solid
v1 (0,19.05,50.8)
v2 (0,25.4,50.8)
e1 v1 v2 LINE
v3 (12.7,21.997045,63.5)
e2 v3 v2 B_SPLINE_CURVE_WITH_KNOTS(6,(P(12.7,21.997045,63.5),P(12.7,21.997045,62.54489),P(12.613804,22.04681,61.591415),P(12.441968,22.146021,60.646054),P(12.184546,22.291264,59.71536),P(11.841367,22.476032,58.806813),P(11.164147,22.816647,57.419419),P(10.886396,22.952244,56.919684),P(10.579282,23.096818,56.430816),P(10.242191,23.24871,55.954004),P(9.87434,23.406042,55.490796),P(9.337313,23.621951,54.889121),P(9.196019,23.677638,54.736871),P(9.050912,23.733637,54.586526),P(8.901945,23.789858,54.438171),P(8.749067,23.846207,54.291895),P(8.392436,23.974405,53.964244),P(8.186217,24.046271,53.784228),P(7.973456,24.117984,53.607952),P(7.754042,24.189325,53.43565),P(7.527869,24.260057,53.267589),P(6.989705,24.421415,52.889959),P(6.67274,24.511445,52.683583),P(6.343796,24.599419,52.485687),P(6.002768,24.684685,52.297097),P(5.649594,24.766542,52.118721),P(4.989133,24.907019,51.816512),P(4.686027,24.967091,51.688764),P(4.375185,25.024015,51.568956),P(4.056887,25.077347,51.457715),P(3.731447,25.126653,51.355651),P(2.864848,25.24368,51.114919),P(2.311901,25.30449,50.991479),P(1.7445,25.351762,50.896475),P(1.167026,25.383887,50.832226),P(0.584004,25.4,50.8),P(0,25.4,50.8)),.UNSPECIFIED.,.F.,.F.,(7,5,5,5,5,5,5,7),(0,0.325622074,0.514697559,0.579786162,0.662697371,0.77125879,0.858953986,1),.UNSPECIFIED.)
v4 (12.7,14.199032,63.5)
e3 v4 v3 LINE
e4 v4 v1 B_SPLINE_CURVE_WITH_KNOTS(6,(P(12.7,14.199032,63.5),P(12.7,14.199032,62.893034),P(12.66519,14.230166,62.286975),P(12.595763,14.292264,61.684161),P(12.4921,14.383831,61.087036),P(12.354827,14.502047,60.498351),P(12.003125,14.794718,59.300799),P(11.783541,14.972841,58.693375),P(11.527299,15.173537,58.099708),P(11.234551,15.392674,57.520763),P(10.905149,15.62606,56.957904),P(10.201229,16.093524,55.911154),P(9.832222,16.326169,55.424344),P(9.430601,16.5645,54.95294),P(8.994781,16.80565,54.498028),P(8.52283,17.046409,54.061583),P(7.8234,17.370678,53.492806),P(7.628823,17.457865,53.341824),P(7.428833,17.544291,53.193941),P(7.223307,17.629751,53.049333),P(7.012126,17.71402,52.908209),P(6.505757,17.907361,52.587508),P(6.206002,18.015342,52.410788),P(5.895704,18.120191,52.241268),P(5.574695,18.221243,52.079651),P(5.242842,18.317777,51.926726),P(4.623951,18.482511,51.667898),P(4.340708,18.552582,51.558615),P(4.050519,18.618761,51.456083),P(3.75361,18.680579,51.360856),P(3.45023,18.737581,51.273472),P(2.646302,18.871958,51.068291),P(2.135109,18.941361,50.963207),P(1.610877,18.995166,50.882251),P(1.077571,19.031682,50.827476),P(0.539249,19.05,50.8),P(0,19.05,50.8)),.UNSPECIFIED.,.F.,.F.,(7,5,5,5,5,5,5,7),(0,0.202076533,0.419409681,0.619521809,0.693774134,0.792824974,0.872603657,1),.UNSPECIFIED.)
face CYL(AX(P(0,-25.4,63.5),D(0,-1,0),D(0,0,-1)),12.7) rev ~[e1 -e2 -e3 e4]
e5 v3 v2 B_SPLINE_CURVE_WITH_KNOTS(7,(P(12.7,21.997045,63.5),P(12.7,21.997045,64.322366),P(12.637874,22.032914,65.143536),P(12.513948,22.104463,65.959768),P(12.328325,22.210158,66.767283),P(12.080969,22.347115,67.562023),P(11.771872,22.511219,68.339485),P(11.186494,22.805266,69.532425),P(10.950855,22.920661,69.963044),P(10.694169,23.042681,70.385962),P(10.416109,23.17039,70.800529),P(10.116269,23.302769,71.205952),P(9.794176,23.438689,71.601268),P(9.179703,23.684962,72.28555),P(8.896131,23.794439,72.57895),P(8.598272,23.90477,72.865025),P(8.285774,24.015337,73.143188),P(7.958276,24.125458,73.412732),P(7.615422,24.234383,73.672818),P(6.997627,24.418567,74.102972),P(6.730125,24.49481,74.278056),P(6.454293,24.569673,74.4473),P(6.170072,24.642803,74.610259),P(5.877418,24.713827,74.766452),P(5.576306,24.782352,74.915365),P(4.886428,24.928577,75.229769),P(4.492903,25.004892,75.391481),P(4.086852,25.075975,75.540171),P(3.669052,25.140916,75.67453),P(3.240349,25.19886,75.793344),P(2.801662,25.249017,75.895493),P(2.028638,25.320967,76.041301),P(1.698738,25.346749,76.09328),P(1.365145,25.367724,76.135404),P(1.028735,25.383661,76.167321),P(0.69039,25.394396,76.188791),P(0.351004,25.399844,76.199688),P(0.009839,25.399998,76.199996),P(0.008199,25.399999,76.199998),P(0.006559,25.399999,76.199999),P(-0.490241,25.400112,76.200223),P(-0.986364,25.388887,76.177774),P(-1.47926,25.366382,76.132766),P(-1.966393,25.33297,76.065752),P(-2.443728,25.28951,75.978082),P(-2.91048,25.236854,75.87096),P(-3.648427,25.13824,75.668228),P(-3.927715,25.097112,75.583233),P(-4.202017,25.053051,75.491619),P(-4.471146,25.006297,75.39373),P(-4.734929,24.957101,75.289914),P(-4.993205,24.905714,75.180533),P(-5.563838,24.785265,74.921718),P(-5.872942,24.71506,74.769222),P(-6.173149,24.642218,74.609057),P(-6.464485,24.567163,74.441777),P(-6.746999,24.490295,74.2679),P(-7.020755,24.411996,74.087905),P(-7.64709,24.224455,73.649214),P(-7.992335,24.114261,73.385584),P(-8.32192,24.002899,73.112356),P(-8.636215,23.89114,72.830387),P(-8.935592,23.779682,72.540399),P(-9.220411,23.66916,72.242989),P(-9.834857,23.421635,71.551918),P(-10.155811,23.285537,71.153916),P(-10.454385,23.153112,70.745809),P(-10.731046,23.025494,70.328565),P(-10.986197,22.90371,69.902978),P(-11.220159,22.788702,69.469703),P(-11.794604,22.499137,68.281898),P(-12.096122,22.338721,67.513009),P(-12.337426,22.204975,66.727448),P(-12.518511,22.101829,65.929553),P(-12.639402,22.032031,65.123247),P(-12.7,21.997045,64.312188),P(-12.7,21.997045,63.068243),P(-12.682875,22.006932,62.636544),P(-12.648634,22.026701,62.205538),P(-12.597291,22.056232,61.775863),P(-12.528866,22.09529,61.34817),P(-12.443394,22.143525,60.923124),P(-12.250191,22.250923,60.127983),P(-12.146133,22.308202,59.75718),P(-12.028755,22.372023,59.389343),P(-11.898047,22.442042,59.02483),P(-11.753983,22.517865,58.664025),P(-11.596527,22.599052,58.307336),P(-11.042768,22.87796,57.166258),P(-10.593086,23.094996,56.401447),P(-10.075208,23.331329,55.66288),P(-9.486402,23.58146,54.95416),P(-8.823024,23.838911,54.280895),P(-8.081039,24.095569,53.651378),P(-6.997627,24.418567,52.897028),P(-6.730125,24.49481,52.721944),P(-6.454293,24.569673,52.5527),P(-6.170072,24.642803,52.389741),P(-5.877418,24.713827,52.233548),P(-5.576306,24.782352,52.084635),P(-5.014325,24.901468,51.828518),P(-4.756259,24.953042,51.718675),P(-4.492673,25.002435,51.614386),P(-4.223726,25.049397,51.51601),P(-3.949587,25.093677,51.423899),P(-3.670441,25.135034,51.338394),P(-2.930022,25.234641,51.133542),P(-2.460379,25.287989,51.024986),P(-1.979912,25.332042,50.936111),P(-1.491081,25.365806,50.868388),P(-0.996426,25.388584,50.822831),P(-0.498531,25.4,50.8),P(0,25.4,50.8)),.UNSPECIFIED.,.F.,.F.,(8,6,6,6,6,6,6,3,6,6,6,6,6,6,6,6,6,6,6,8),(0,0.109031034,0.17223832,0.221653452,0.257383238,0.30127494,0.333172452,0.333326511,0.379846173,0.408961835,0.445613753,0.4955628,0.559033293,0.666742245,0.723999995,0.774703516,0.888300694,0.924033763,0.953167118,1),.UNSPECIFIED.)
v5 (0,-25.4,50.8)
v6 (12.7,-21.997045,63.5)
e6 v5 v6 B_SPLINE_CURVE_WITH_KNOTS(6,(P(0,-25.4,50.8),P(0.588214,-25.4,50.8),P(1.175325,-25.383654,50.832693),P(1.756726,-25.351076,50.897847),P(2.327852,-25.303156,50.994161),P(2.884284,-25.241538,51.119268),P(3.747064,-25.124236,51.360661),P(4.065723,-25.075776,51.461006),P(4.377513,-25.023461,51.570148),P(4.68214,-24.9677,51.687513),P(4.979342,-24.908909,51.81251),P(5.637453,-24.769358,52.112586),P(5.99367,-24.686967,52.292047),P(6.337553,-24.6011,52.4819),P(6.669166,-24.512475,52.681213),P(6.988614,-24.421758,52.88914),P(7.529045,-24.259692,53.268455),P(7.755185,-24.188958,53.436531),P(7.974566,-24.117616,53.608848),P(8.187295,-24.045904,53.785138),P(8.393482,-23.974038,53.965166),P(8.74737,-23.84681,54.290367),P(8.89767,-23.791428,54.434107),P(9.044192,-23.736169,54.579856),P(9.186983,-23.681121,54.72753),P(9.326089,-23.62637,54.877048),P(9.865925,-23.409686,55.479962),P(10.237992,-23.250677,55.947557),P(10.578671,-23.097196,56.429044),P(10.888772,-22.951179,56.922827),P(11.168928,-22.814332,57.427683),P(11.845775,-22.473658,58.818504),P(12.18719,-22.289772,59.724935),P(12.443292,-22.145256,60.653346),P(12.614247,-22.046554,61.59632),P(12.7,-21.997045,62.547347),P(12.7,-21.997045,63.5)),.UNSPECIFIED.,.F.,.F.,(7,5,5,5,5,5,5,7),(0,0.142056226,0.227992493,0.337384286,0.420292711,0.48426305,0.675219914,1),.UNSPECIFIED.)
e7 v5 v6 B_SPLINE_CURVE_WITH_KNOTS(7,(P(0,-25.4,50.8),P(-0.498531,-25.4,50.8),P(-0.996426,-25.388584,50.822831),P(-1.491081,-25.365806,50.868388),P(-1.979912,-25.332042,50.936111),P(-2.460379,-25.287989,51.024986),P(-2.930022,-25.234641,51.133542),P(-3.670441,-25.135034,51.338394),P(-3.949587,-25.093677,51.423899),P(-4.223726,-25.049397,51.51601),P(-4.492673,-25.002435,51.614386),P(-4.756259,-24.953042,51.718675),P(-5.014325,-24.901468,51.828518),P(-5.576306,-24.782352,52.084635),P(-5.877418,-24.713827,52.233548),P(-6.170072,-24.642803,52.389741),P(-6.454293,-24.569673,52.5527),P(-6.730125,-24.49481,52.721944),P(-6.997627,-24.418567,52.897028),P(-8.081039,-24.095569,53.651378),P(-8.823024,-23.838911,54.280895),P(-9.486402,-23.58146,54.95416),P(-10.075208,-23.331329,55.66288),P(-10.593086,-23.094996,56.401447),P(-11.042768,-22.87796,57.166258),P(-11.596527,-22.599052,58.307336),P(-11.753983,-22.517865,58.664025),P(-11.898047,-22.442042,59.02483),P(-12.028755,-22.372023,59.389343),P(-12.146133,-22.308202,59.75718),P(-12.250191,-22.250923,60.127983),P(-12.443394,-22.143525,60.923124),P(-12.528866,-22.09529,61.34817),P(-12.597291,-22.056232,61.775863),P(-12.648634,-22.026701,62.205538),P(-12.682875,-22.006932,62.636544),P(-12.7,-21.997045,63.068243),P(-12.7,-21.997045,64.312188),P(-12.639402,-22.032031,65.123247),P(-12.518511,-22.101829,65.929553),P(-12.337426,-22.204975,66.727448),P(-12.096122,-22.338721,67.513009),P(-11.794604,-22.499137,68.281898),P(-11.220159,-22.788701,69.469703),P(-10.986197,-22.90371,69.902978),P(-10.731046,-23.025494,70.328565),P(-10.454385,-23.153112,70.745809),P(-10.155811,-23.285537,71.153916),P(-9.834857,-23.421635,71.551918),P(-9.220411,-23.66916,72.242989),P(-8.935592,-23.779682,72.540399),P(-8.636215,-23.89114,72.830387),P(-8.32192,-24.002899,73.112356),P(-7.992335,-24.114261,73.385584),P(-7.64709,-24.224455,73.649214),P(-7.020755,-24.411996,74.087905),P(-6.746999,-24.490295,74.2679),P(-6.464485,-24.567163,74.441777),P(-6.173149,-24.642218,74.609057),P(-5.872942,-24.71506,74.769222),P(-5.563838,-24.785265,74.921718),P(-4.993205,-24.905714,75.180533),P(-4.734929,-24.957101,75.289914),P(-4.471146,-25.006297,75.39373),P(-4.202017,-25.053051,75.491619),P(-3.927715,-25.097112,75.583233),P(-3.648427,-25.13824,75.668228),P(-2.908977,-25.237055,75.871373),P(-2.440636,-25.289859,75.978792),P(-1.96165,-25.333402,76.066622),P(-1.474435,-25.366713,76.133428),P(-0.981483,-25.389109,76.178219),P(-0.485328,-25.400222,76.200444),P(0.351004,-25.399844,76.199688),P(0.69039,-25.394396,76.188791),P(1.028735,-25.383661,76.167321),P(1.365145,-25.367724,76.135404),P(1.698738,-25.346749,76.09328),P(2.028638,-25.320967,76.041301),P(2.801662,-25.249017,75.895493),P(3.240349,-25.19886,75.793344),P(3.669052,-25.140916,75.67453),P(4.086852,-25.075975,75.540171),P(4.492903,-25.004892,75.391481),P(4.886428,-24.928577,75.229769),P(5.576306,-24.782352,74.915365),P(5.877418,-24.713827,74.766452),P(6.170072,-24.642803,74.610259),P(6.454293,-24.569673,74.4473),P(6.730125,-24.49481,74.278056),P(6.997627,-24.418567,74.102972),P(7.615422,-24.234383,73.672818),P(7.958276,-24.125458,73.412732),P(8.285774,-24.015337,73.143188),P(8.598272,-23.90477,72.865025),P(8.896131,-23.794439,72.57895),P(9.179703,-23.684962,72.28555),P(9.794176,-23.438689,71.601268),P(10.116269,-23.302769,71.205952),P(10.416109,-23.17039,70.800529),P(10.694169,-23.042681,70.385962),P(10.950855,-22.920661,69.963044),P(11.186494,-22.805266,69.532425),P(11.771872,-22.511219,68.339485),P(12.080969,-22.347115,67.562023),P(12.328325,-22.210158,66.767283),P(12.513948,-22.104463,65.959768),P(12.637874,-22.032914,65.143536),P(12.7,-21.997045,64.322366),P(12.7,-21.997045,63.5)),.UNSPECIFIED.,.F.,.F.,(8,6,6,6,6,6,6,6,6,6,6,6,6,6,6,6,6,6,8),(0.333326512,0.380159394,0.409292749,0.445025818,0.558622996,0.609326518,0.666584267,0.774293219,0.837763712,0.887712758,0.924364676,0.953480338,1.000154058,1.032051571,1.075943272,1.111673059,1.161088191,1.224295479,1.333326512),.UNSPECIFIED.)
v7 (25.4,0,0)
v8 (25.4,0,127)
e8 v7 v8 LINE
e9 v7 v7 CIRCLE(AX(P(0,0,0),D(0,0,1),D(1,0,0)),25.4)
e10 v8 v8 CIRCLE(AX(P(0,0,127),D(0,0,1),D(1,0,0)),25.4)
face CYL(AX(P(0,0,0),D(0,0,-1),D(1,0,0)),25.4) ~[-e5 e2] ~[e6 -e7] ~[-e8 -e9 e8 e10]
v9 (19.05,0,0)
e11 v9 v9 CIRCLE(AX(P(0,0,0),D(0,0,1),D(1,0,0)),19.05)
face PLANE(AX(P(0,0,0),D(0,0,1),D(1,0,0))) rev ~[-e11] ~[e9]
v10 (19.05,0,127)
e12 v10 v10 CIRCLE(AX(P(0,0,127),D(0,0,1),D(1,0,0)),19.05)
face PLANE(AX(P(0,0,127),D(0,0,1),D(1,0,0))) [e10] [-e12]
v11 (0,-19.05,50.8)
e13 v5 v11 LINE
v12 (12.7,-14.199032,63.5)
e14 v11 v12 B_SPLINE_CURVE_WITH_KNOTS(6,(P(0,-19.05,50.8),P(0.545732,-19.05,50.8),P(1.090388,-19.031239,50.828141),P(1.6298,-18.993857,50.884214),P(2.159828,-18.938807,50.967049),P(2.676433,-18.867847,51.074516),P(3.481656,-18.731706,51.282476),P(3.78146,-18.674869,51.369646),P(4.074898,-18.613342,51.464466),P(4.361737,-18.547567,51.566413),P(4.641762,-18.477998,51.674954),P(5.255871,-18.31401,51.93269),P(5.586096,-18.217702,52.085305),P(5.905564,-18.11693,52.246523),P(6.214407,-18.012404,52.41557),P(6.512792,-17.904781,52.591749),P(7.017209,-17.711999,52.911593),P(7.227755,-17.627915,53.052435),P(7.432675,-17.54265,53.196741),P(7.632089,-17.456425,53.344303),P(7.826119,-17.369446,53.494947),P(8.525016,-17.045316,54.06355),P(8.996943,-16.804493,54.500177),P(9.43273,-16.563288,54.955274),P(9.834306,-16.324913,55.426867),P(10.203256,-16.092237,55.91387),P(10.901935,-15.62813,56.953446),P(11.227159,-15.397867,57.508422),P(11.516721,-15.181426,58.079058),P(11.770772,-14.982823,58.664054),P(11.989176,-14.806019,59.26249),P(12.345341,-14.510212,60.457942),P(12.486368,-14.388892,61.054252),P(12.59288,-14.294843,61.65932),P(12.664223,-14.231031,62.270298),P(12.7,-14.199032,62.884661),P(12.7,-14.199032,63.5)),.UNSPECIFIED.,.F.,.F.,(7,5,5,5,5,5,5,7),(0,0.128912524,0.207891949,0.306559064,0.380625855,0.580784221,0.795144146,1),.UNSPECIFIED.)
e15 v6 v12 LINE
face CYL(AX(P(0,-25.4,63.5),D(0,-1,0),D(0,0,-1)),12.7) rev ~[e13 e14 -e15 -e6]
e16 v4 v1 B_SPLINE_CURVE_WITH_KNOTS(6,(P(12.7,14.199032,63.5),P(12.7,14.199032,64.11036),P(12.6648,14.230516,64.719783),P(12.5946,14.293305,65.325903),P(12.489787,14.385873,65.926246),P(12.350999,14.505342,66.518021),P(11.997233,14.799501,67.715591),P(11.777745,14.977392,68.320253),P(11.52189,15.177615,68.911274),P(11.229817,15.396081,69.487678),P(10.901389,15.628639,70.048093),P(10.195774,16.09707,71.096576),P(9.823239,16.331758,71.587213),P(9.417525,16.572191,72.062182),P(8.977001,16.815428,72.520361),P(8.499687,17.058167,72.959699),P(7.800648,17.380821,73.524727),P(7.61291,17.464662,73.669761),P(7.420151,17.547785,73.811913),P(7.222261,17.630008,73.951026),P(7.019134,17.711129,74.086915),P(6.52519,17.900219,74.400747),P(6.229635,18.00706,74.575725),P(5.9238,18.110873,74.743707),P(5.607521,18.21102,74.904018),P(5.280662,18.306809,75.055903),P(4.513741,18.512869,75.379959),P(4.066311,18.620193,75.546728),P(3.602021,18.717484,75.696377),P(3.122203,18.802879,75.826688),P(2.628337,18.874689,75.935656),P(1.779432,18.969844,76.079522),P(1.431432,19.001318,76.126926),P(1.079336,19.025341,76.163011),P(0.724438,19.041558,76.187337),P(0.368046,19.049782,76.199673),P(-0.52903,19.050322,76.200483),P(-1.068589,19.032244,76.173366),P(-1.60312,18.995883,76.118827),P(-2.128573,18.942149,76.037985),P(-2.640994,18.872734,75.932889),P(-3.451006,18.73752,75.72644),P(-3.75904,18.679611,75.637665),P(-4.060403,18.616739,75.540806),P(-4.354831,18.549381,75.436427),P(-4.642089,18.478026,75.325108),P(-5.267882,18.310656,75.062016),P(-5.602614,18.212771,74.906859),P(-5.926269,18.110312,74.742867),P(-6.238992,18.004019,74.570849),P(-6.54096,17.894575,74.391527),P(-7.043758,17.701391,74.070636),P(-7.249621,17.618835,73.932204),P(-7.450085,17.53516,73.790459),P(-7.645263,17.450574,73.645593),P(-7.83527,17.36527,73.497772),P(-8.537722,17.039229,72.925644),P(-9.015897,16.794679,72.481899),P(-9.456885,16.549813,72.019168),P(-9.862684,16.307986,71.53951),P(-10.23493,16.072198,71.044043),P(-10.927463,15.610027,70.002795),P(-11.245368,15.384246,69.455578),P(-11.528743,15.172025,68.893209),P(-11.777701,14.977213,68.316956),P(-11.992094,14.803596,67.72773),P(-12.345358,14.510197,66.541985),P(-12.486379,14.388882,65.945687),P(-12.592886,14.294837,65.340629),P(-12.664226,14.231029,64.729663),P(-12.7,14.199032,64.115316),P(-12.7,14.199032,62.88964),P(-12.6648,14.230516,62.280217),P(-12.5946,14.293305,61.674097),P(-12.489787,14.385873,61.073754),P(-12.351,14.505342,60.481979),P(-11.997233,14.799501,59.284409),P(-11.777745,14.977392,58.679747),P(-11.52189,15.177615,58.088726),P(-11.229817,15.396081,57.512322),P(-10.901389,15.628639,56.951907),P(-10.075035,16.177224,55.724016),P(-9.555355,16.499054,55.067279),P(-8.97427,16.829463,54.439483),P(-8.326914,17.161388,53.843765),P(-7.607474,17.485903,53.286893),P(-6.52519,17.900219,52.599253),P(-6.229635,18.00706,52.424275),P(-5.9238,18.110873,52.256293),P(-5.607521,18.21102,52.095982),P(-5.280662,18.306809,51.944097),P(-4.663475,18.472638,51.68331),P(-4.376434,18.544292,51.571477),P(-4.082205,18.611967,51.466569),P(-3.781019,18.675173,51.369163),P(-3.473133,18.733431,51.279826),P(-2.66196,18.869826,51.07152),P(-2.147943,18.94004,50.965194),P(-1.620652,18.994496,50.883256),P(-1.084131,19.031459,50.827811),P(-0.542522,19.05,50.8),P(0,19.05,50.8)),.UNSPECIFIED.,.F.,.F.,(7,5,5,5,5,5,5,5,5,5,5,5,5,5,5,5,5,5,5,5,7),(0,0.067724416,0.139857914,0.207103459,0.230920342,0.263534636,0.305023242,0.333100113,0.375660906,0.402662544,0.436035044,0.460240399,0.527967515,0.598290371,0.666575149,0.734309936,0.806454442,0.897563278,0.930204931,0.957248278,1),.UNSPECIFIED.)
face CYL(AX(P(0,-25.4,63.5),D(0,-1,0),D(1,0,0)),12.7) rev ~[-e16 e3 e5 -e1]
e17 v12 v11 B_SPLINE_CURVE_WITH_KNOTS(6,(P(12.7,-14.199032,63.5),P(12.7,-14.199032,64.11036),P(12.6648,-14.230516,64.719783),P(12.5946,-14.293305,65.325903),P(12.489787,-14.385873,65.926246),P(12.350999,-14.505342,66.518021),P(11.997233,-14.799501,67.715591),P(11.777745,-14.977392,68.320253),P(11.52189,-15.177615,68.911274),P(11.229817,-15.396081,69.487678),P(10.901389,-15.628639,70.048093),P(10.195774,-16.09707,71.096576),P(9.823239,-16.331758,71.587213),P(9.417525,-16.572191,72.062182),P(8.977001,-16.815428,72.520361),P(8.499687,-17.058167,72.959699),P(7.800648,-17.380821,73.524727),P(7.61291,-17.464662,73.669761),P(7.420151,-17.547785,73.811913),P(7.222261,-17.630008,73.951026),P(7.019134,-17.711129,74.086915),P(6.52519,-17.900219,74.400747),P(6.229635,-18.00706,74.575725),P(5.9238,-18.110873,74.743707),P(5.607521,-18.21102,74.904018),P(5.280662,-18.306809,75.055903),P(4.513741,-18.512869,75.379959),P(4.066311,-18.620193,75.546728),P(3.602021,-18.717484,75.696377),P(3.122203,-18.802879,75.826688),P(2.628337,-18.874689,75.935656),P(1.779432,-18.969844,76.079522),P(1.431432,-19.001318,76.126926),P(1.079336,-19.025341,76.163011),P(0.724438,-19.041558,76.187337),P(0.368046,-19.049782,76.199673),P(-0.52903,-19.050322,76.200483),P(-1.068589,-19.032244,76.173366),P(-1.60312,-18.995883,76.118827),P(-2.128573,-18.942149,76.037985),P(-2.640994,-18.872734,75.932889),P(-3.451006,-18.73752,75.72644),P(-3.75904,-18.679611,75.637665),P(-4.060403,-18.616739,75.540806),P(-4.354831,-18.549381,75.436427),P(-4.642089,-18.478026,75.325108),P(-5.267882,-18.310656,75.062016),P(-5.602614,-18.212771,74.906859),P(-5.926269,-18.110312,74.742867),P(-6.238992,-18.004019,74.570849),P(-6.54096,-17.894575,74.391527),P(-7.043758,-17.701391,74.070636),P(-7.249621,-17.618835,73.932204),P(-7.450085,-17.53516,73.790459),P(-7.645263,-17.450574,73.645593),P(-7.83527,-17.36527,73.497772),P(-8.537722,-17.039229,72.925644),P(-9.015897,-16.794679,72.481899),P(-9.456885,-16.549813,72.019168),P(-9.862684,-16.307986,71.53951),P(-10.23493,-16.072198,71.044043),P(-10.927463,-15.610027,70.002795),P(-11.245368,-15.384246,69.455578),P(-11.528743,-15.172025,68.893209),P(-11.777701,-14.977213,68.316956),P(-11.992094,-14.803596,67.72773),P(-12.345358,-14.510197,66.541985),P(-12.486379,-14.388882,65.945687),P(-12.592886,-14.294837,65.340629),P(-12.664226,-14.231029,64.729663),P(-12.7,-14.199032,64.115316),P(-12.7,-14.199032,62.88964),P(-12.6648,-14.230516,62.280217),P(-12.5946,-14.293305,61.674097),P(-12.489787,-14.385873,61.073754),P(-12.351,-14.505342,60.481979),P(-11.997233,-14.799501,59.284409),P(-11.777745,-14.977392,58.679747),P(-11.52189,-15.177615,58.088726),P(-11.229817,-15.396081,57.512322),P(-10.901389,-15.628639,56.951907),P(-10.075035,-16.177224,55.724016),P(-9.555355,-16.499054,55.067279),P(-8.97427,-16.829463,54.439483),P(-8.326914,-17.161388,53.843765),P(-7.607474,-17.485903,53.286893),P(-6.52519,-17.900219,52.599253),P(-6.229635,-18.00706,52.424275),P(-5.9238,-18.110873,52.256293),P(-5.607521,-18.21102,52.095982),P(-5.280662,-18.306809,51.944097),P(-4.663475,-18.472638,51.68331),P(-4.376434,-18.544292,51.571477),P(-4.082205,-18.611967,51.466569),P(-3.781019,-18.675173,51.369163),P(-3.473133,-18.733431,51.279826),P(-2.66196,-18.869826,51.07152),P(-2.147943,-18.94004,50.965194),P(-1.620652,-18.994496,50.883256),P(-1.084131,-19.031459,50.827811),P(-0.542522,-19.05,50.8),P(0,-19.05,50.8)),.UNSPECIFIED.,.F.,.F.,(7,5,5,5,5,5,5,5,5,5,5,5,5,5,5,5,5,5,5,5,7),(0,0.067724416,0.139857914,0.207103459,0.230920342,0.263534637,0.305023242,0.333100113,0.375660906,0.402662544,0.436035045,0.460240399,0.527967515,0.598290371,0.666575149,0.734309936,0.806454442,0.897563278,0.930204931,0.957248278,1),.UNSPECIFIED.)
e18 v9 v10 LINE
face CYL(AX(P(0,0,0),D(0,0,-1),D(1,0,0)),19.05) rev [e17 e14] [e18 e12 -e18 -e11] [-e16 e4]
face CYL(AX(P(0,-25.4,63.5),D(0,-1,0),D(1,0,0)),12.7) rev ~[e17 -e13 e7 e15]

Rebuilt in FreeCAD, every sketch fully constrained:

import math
import FreeCAD as App
import Part
import Sketcher

V = App.Vector
Q = App.Units.Quantity

doc = App.newDocument("Part")
body = doc.addObject("PartDesign::Body", "Body")

sketch1 = body.newObject("Sketcher::SketchObject", "Sketch")
sketch1.AttachmentSupport = (doc.getObject("XY_Plane"), [""])
sketch1.MapMode = "FlatFace"
sketch1.addGeometry(Part.Circle(V(0, 0, 0), V(0, 0, 1), 25), False)
sketch1.addGeometry(Part.Circle(V(0, 0, 0), V(0, 0, 1), 19), False)
sketch1.addConstraint(Sketcher.Constraint("Coincident", 0, 3, -1, 1))
sketch1.addConstraint(Sketcher.Constraint("Coincident", 1, 3, -1, 1))
sketch1.addConstraint(Sketcher.Constraint("Diameter", 0, Q("2 in")))
sketch1.addConstraint(Sketcher.Constraint("Diameter", 1, Q("1.5 in")))
pad1 = body.newObject("PartDesign::Pad", "Pad")
pad1.Profile = sketch1
pad1.Length = Q("5 in")

sketch2 = body.newObject("Sketcher::SketchObject", "Sketch001")
sketch2.AttachmentSupport = (doc.getObject("XZ_Plane"), [""])
sketch2.MapMode = "FlatFace"
sketch2.AttachmentOffset = App.Placement(V(0, 0, 1 * 25.4), App.Rotation())
sketch2.addGeometry(Part.ArcOfCircle(Part.Circle(V(0, 64, 0), V(0, 0, 1), 13), math.radians(-90), math.radians(0)), False)
sketch2.addGeometry(Part.ArcOfCircle(Part.Circle(V(0, 64, 0), V(0, 0, 1), 13), math.radians(0), math.radians(270)), False)
sketch2.addConstraint(Sketcher.Constraint("Tangent", 0, 1, 1, 2))
sketch2.addConstraint(Sketcher.Constraint("Coincident", 1, 1, 0, 2))
sketch2.addConstraint(Sketcher.Constraint("PointOnObject", 0, 3, -2))
sketch2.addConstraint(Sketcher.Constraint("PointOnObject", 0, 1, -2))
sketch2.addConstraint(Sketcher.Constraint("Horizontal", 0, 3, 1, 1))
sketch2.addConstraint(Sketcher.Constraint("Radius", 0, Q("0.5 in")))
sketch2.addConstraint(Sketcher.Constraint("DistanceY", -1, 1, 0, 1, Q("2 in")))
pocket1 = body.newObject("PartDesign::Pocket", "Pocket")
pocket1.Profile = sketch2
pocket1.Length = Q("2 in")

doc.recompute()
